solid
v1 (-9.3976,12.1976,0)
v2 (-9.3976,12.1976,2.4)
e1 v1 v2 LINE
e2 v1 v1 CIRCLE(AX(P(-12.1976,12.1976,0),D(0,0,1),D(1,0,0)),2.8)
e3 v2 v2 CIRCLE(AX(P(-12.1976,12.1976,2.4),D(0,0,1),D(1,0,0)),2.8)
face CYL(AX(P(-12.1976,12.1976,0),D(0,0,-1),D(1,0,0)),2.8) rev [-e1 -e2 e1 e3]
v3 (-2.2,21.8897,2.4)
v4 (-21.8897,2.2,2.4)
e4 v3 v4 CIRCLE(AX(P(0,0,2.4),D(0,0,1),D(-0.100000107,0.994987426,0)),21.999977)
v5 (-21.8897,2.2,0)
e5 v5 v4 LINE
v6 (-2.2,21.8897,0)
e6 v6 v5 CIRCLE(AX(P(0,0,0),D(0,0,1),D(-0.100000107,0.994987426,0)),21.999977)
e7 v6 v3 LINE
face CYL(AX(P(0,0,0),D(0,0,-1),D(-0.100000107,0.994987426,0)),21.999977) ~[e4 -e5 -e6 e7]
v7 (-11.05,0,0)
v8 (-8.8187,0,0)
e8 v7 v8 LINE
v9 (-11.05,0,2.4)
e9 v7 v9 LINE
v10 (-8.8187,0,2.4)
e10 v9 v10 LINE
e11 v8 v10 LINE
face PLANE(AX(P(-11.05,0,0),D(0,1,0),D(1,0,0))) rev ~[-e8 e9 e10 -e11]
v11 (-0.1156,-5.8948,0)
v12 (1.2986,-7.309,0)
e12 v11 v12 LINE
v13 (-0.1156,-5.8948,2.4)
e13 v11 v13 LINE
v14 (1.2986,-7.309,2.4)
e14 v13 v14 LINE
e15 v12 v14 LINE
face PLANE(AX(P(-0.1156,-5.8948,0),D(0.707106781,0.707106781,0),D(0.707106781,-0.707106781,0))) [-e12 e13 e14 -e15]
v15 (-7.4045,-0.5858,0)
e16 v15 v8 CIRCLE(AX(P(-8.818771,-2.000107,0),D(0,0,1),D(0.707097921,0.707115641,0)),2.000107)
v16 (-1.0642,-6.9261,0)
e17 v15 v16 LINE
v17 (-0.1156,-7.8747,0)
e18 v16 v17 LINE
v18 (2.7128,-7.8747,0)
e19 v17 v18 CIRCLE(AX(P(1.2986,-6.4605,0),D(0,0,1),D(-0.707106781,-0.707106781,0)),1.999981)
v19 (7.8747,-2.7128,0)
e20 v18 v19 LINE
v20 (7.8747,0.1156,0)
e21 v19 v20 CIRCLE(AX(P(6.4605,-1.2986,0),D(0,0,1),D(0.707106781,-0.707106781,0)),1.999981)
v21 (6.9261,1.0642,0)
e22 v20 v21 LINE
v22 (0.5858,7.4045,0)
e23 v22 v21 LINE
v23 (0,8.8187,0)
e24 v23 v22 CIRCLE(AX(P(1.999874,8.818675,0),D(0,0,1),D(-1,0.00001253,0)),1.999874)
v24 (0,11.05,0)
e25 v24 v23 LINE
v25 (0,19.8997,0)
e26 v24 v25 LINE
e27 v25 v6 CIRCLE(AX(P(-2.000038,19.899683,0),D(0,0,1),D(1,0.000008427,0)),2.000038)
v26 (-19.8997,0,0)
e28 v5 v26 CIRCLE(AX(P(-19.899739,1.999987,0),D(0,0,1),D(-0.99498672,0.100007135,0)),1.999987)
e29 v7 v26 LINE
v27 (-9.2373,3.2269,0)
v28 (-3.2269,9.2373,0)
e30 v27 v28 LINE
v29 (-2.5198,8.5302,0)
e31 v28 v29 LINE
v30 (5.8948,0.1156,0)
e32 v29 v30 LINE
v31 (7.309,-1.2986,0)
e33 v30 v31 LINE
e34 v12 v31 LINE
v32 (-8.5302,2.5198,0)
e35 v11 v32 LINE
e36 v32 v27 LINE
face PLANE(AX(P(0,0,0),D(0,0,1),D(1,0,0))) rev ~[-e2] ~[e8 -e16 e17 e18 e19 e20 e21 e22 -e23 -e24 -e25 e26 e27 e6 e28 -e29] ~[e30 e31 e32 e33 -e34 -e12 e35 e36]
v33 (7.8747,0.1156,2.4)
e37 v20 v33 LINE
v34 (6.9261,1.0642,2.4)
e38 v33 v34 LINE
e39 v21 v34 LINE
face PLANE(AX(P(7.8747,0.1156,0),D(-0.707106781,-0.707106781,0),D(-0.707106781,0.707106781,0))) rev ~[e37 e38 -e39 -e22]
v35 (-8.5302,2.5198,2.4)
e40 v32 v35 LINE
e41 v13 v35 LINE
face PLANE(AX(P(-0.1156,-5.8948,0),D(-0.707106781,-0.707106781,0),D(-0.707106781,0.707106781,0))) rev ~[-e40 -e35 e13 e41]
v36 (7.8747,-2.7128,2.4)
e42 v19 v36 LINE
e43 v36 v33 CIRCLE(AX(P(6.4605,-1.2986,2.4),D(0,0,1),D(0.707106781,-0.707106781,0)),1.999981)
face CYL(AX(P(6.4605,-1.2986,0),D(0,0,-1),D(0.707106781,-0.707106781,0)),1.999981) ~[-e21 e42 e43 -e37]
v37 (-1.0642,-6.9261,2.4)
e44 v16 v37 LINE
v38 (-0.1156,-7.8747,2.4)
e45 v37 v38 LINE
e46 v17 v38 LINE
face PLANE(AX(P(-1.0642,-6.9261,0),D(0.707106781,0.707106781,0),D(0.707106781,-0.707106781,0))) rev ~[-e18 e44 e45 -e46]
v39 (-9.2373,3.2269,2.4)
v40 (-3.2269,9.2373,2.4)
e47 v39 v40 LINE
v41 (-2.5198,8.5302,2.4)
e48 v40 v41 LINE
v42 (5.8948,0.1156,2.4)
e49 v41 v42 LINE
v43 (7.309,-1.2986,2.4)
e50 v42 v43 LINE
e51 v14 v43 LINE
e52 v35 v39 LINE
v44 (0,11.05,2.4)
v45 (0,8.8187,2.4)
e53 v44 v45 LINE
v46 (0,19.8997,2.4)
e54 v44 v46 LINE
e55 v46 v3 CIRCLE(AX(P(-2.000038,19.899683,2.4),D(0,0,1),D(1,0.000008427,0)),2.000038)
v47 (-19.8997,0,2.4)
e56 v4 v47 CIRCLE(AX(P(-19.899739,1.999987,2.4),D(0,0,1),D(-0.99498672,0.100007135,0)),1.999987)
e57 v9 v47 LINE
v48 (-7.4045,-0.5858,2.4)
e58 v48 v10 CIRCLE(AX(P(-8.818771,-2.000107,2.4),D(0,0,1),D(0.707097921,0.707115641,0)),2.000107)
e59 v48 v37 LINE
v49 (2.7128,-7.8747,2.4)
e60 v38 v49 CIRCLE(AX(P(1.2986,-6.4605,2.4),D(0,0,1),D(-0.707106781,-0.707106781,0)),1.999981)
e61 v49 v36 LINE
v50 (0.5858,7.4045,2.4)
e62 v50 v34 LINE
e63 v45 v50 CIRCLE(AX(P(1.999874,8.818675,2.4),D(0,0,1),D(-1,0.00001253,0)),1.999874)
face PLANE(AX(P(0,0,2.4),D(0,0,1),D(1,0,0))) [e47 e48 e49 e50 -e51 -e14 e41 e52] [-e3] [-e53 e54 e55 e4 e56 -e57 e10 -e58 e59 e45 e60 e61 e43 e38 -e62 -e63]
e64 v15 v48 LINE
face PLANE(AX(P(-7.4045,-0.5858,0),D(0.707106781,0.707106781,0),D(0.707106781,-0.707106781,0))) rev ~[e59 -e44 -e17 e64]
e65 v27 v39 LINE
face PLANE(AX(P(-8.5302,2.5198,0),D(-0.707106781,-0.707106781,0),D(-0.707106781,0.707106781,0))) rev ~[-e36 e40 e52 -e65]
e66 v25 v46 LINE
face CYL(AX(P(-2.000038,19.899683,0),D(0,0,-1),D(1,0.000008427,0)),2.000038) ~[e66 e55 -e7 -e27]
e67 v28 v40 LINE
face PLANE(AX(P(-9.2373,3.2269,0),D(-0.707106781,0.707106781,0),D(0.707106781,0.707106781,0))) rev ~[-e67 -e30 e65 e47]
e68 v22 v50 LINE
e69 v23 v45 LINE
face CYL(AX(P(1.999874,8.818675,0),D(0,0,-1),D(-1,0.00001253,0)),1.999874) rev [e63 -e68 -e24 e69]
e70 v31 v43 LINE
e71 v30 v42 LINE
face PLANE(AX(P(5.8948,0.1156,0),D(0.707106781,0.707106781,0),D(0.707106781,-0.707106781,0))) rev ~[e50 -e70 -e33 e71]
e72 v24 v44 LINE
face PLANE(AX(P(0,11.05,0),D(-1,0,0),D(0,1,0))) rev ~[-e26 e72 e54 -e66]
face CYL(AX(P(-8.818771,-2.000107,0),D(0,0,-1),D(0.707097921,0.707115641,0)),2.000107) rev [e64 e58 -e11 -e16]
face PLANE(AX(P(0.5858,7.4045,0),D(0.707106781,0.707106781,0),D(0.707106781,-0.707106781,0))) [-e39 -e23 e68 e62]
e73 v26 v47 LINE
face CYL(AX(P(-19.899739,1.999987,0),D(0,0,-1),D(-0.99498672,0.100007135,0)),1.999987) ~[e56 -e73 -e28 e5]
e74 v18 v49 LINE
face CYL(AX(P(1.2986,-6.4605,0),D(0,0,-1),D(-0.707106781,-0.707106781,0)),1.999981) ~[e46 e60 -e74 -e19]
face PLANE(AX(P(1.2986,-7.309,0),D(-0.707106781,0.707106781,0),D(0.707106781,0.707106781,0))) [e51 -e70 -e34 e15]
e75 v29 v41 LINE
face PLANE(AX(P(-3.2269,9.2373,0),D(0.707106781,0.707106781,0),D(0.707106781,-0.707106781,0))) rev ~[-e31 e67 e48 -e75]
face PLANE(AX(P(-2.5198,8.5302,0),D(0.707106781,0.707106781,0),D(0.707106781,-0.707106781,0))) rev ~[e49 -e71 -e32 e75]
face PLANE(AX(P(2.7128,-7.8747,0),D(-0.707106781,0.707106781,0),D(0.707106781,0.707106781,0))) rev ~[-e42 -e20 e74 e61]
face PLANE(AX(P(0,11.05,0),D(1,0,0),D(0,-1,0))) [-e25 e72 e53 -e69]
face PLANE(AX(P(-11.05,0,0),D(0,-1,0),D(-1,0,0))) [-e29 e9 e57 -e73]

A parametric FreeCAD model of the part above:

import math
import FreeCAD as App
import Part
import Sketcher
from FreeCAD import Vector


def add_polygon(sketch, points):
    """Adds a closed chain of lines whose ends are joined by coincident constraints."""
    first, n = sketch.GeometryCount, len(points)
    for a, b in zip(points, points[1:] + points[:1]):
        sketch.addGeometry(Part.LineSegment(App.Vector(*a, 0), App.Vector(*b, 0)), False)
    for i in range(n):
        sketch.addConstraint(Sketcher.Constraint("Coincident", first + i, 2, first + (i + 1) % n, 1))

doc = App.newDocument("Part")
params = doc.addObject("Spreadsheet::Sheet", "Params")
for row, (alias, value) in enumerate([
    ("sketch1_radius", "2 mm"),
    ("sketch1_radius2", "22 mm"),
    ("sketch1_diameter", "5.6 mm"),
    ("sketch1_length", "14.9 mm"),
    ("sketch1_length2", "7.3 mm"),
    ("pad1_length", "2.4 mm"),
], start=1):
    params.set(f"A{row}", alias)
    params.set(f"B{row}", "=" + value)
    params.setAlias(f"B{row}", alias)

body = doc.addObject("PartDesign::Body", "Body")

# Sketch on XY plane
sketch1 = body.newObject("Sketcher::SketchObject", "Sketch")
sketch1.AttachmentSupport = (doc.getObject("XY_Plane"), [""])
sketch1.MapMode = "FlatFace"
sketch1.addGeometry(Part.ArcOfCircle(Part.Circle(Vector(-2, 19.9, 0), Vector(0, 0, 1), 2), math.radians(0), math.radians(96)), False)  # 0
sketch1.addGeometry(Part.ArcOfCircle(Part.Circle(Vector(0, 0, 0), Vector(0, 0, 1), 22), math.radians(96), math.radians(174)), False)  # 1
sketch1.addGeometry(Part.ArcOfCircle(Part.Circle(Vector(-19.9, 2, 0), Vector(0, 0, 1), 2), math.radians(174), math.radians(270)), False)  # 2
sketch1.addGeometry(Part.LineSegment(Vector(-19.9, 0, 0), Vector(-8.8, 0, 0)), False)  # 3
sketch1.addGeometry(Part.ArcOfCircle(Part.Circle(Vector(-8.8, -2, 0), Vector(0, 0, 1), 2), math.radians(45), math.radians(90)), False)  # 4
sketch1.addGeometry(Part.LineSegment(Vector(-7.4, -0.6, 0), Vector(-0.1, -7.9, 0)), False)  # 5
sketch1.addGeometry(Part.ArcOfCircle(Part.Circle(Vector(1.3, -6.5, 0), Vector(0, 0, 1), 2), math.radians(-135), math.radians(-45)), False)  # 6
sketch1.addGeometry(Part.LineSegment(Vector(2.7, -7.9, 0), Vector(7.9, -2.7, 0)), False)  # 7
sketch1.addGeometry(Part.ArcOfCircle(Part.Circle(Vector(6.5, -1.3, 0), Vector(0, 0, 1), 2), math.radians(-45), math.radians(45)), False)  # 8
sketch1.addGeometry(Part.LineSegment(Vector(7.9, 0.1, 0), Vector(0.6, 7.4, 0)), False)  # 9
sketch1.addGeometry(Part.ArcOfCircle(Part.Circle(Vector(2, 8.8, 0), Vector(0, 0, 1), 2), math.radians(180), math.radians(225)), False)  # 10
sketch1.addGeometry(Part.LineSegment(Vector(0, 8.8, 0), Vector(0, 19.9, 0)), False)  # 11
add_polygon(sketch1, [(1.3, -7.3), (-9.2, 3.2), (-3.2, 9.2), (7.3, -1.3)])  # lines 12-15
sketch1.addGeometry(Part.Circle(Vector(-12.2, 12.2, 0), Vector(0, 0, 1), 2.8), False)  # 16
sketch1.addConstraint(Sketcher.Constraint("Tangent", 0, 2, 1, 1))
sketch1.addConstraint(Sketcher.Constraint("Tangent", 1, 2, 2, 1))
sketch1.addConstraint(Sketcher.Constraint("Tangent", 2, 2, 3, 1))
sketch1.addConstraint(Sketcher.Constraint("Tangent", 3, 2, 4, 2))
sketch1.addConstraint(Sketcher.Constraint("Tangent", 4, 1, 5, 1))
sketch1.addConstraint(Sketcher.Constraint("Tangent", 5, 2, 6, 1))
sketch1.addConstraint(Sketcher.Constraint("Tangent", 6, 2, 7, 1))
sketch1.addConstraint(Sketcher.Constraint("Tangent", 7, 2, 8, 1))
sketch1.addConstraint(Sketcher.Constraint("Tangent", 8, 2, 9, 1))
sketch1.addConstraint(Sketcher.Constraint("Tangent", 9, 2, 10, 2))
sketch1.addConstraint(Sketcher.Constraint("Tangent", 10, 1, 11, 1))
sketch1.addConstraint(Sketcher.Constraint("Tangent", 11, 2, 0, 1))
sketch1.addConstraint(Sketcher.Constraint("Horizontal", 3))
sketch1.addConstraint(Sketcher.Constraint("Vertical", 11))
sketch1.addConstraint(Sketcher.Constraint("Coincident", 1, 3, -1, 1))
sketch1.addConstraint(Sketcher.Constraint("Equal", 0, 2))
sketch1.addConstraint(Sketcher.Constraint("Equal", 2, 4))
sketch1.addConstraint(Sketcher.Constraint("Equal", 4, 6))
sketch1.addConstraint(Sketcher.Constraint("Equal", 6, 8))
sketch1.addConstraint(Sketcher.Constraint("Equal", 8, 10))
sketch1.addConstraint(Sketcher.Constraint("PointOnObject", 2, 2, -1))
sketch1.addConstraint(Sketcher.Constraint("PointOnObject", 10, 1, -2))
sketch1.addConstraint(Sketcher.Constraint("Perpendicular", 5, 7))
sketch1.addConstraint(Sketcher.Constraint("Perpendicular", 7, 9))
sketch1.addConstraint(Sketcher.Constraint("Parallel", 9, 12))
sketch1.addConstraint(Sketcher.Constraint("Perpendicular", 12, 13))
sketch1.addConstraint(Sketcher.Constraint("Perpendicular", 13, 14))
sketch1.addConstraint(Sketcher.Constraint("Perpendicular", 14, 15))
sketch1.addConstraint(Sketcher.Constraint("Horizontal", 5, 2, 6, 2))
sketch1.addConstraint(Sketcher.Constraint("Horizontal", 8, 3, 14, 2))
sketch1.addConstraint(Sketcher.Constraint("Vertical", 6, 3, 15, 2))
sketch1.addConstraint(Sketcher.Constraint("Equal", 3, 11))
sketch1.addConstraint(Sketcher.Constraint("Radius", 0, 2.0))
sketch1.addConstraint(Sketcher.Constraint("Radius", 1, 22.0))
sketch1.addConstraint(Sketcher.Constraint("Diameter", 16, 5.6))
sketch1.addConstraint(Sketcher.Constraint("Distance", 12, 14.9))
sketch1.addConstraint(Sketcher.Constraint("Distance", 7, 7.3))
sketch1.addConstraint(Sketcher.Constraint("Distance", 13, 8.5))
sketch1.addConstraint(Sketcher.Constraint("Distance", 5, 10.308))
sketch1.addConstraint(Sketcher.Constraint("DistanceY", 16, 3, 0, 3, 7.702))
sketch1.addConstraint(Sketcher.Constraint("DistanceX", 2, 3, 16, 3, 7.702))
sketch1.setExpression("Constraints[36]", "Params.sketch1_radius")
sketch1.setExpression("Constraints[37]", "Params.sketch1_radius2")
sketch1.setExpression("Constraints[38]", "Params.sketch1_diameter")
sketch1.setExpression("Constraints[39]", "Params.sketch1_length")
sketch1.setExpression("Constraints[40]", "Params.sketch1_length2")
pad1 = body.newObject("PartDesign::Pad", "Pad")
pad1.Profile = sketch1
pad1.setExpression("Length", "Params.pad1_length")

doc.recompute()
